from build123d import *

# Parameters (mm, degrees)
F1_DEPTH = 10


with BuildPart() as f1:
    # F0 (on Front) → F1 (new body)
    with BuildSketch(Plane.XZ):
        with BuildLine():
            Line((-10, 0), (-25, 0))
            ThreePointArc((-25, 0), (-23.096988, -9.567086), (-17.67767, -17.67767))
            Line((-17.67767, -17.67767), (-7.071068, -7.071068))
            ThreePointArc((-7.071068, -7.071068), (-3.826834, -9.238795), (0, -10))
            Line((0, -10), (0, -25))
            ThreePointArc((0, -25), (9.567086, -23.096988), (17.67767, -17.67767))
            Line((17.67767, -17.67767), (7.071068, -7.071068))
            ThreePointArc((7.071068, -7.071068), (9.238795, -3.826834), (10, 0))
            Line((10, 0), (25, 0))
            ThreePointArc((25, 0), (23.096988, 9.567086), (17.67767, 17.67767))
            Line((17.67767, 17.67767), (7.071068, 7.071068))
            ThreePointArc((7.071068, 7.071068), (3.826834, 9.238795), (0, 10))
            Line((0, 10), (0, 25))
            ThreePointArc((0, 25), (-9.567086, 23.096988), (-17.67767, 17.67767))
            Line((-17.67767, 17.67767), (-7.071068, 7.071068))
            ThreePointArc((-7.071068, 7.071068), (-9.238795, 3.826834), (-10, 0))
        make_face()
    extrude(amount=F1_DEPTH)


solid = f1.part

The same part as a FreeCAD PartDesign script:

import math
import FreeCAD as App
import Part
import Sketcher
Q = App.Units.Quantity

doc = App.newDocument("Part")
body = doc.addObject("PartDesign::Body", "Body")

sketch1 = body.newObject("Sketcher::SketchObject", "Sketch")
sketch1.AttachmentSupport = (doc.getObject("XZ_Plane"), [""])
sketch1.MapMode = "FlatFace"
sketch1.addGeometry(Part.LineSegment(App.Vector(-10, 0, 0), App.Vector(-25, 0, 0)), False)
sketch1.addGeometry(Part.ArcOfCircle(Part.Circle(App.Vector(0, 0, 0), App.Vector(0, 0, 1), 25), math.radians(-180), math.radians(-135)), False)
sketch1.addGeometry(Part.LineSegment(App.Vector(-18, -18, 0), App.Vector(-7, -7, 0)), False)
sketch1.addGeometry(Part.ArcOfCircle(Part.Circle(App.Vector(0, 0, 0), App.Vector(0, 0, 1), 10), math.radians(-135), math.radians(-90)), False)
sketch1.addGeometry(Part.LineSegment(App.Vector(0, -10, 0), App.Vector(0, -25, 0)), False)
sketch1.addGeometry(Part.ArcOfCircle(Part.Circle(App.Vector(0, 0, 0), App.Vector(0, 0, 1), 25), math.radians(-90), math.radians(-45)), False)
sketch1.addGeometry(Part.LineSegment(App.Vector(18, -18, 0), App.Vector(7, -7, 0)), False)
sketch1.addGeometry(Part.ArcOfCircle(Part.Circle(App.Vector(0, 0, 0), App.Vector(0, 0, 1), 10), math.radians(-45), math.radians(0)), False)
sketch1.addGeometry(Part.LineSegment(App.Vector(10, 0, 0), App.Vector(25, 0, 0)), False)
sketch1.addGeometry(Part.ArcOfCircle(Part.Circle(App.Vector(0, 0, 0), App.Vector(0, 0, 1), 25), math.radians(0), math.radians(45)), False)
sketch1.addGeometry(Part.LineSegment(App.Vector(18, 18, 0), App.Vector(7, 7, 0)), False)
sketch1.addGeometry(Part.ArcOfCircle(Part.Circle(App.Vector(0, 0, 0), App.Vector(0, 0, 1), 10), math.radians(45), math.radians(90)), False)
sketch1.addGeometry(Part.LineSegment(App.Vector(0, 10, 0), App.Vector(0, 25, 0)), False)
sketch1.addGeometry(Part.ArcOfCircle(Part.Circle(App.Vector(0, 0, 0), App.Vector(0, 0, 1), 25), math.radians(90), math.radians(135)), False)
sketch1.addGeometry(Part.LineSegment(App.Vector(-18, 18, 0), App.Vector(-7, 7, 0)), False)
sketch1.addGeometry(Part.ArcOfCircle(Part.Circle(App.Vector(0, 0, 0), App.Vector(0, 0, 1), 10), math.radians(135), math.radians(180)), False)
sketch1.addConstraint(Sketcher.Constraint("Coincident", 0, 2, 1, 1))
sketch1.addConstraint(Sketcher.Constraint("Coincident", 1, 2, 2, 1))
sketch1.addConstraint(Sketcher.Constraint("Coincident", 2, 2, 3, 1))
sketch1.addConstraint(Sketcher.Constraint("Coincident", 3, 2, 4, 1))
sketch1.addConstraint(Sketcher.Constraint("Coincident", 4, 2, 5, 1))
sketch1.addConstraint(Sketcher.Constraint("Coincident", 5, 2, 6, 1))
sketch1.addConstraint(Sketcher.Constraint("Coincident", 6, 2, 7, 1))
sketch1.addConstraint(Sketcher.Constraint("Coincident", 7, 2, 8, 1))
sketch1.addConstraint(Sketcher.Constraint("Coincident", 8, 2, 9, 1))
sketch1.addConstraint(Sketcher.Constraint("Coincident", 9, 2, 10, 1))
sketch1.addConstraint(Sketcher.Constraint("Coincident", 10, 2, 11, 1))
sketch1.addConstraint(Sketcher.Constraint("Coincident", 11, 2, 12, 1))
sketch1.addConstraint(Sketcher.Constraint("Coincident", 12, 2, 13, 1))
sketch1.addConstraint(Sketcher.Constraint("Coincident", 13, 2, 14, 1))
sketch1.addConstraint(Sketcher.Constraint("Coincident", 14, 2, 15, 1))
sketch1.addConstraint(Sketcher.Constraint("Coincident", 15, 2, 0, 1))
sketch1.addConstraint(Sketcher.Constraint("Horizontal", 0))
sketch1.addConstraint(Sketcher.Constraint("Vertical", 4))
sketch1.addConstraint(Sketcher.Constraint("Horizontal", 8))
sketch1.addConstraint(Sketcher.Constraint("Vertical", 12))
sketch1.addConstraint(Sketcher.Constraint("Coincident", 1, 3, -1, 1))
sketch1.addConstraint(Sketcher.Constraint("Coincident", 3, 3, -1, 1))
sketch1.addConstraint(Sketcher.Constraint("Coincident", 5, 3, -1, 1))
sketch1.addConstraint(Sketcher.Constraint("Coincident", 7, 3, -1, 1))
sketch1.addConstraint(Sketcher.Constraint("Coincident", 9, 3, -1, 1))
sketch1.addConstraint(Sketcher.Constraint("Coincident", 11, 3, -1, 1))
sketch1.addConstraint(Sketcher.Constraint("Coincident", 13, 3, -1, 1))
sketch1.addConstraint(Sketcher.Constraint("Coincident", 15, 3, -1, 1))
sketch1.addConstraint(Sketcher.Constraint("Equal", 1, 5))
sketch1.addConstraint(Sketcher.Constraint("Equal", 3, 7))
sketch1.addConstraint(Sketcher.Constraint("Equal", 5, 9))
sketch1.addConstraint(Sketcher.Constraint("Equal", 7, 11))
sketch1.addConstraint(Sketcher.Constraint("Equal", 9, 13))
sketch1.addConstraint(Sketcher.Constraint("Equal", 11, 15))
sketch1.addConstraint(Sketcher.Constraint("PointOnObject", 0, 2, -1))
sketch1.addConstraint(Sketcher.Constraint("PointOnObject", 3, 2, -2))
sketch1.addConstraint(Sketcher.Constraint("PointOnObject", 7, 2, -1))
sketch1.addConstraint(Sketcher.Constraint("PointOnObject", 11, 2, -2))
sketch1.addConstraint(Sketcher.Constraint("Perpendicular", 2, 6))
sketch1.addConstraint(Sketcher.Constraint("Perpendicular", 6, 10))
sketch1.addConstraint(Sketcher.Constraint("Perpendicular", 10, 14))
sketch1.addConstraint(Sketcher.Constraint("Horizontal", 1, 2, 5, 2))
sketch1.addConstraint(Sketcher.Constraint("Horizontal", 2, 2, 6, 2))
sketch1.addConstraint(Sketcher.Constraint("Horizontal", 9, 2, 13, 2))
sketch1.addConstraint(Sketcher.Constraint("Vertical", 5, 2, 9, 2))
sketch1.addConstraint(Sketcher.Constraint("DistanceX", 0, 2, 0, 1, Q("15 mm")))
sketch1.addConstraint(Sketcher.Constraint("DistanceX", 0, 2, -1, 1, Q("25 mm")))
sketch1.addConstraint(Sketcher.Constraint("DistanceX", 1, 2, -1, 1, Q("17.67767 mm")))
pad1 = body.newObject("PartDesign::Pad", "Pad")
pad1.Profile = sketch1
pad1.Length = 10

doc.recompute()
